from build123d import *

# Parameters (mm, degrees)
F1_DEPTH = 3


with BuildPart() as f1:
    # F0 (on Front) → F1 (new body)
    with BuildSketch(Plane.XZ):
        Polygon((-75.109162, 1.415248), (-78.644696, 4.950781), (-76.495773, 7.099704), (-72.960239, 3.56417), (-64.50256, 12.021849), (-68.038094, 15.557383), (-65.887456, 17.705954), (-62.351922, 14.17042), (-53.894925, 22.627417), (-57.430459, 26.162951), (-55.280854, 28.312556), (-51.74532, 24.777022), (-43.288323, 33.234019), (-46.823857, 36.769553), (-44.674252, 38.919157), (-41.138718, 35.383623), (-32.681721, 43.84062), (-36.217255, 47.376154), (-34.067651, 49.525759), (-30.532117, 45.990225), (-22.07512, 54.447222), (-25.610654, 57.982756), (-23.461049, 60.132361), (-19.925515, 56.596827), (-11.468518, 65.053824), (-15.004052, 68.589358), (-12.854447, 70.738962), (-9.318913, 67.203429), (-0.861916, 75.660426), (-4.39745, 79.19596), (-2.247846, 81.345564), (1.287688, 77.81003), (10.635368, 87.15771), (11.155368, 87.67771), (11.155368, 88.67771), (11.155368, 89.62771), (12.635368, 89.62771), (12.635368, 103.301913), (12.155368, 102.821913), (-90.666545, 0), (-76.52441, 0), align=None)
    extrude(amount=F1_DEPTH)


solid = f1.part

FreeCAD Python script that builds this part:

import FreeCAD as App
import Part
import Sketcher
from FreeCAD import Vector


def add_polygon(sketch, points):
    """Adds a closed chain of lines whose ends are joined by coincident constraints."""
    first, n = sketch.GeometryCount, len(points)
    for a, b in zip(points, points[1:] + points[:1]):
        sketch.addGeometry(Part.LineSegment(App.Vector(*a, 0), App.Vector(*b, 0)), False)
    for i in range(n):
        sketch.addConstraint(Sketcher.Constraint("Coincident", first + i, 2, first + (i + 1) % n, 1))

doc = App.newDocument("Part")
body = doc.addObject("PartDesign::Body", "Body")

sketch1 = body.newObject("Sketcher::SketchObject", "Sketch")
sketch1.AttachmentSupport = (doc.getObject("XZ_Plane"), [""])
sketch1.MapMode = "FlatFace"
add_polygon(sketch1, [(-75.109162, 1.415248), (-78.644696, 4.950781), (-76.495773, 7.099704), (-72.960239, 3.56417), (-64.50256, 12.021849), (-68.038094, 15.557383), (-65.887456, 17.705954), (-62.351922, 14.17042), (-53.894925, 22.627417), (-57.430459, 26.162951), (-55.280854, 28.312556), (-51.74532, 24.777022), (-43.288323, 33.234019), (-46.823857, 36.769553), (-44.674252, 38.919157), (-41.138718, 35.383623), (-32.681721, 43.84062), (-36.217255, 47.376154), (-34.067651, 49.525759), (-30.532117, 45.990225), (-22.07512, 54.447222), (-25.610654, 57.982756), (-23.461049, 60.132361), (-19.925515, 56.596827), (-11.468518, 65.053824), (-15.004052, 68.589358), (-12.854447, 70.738962), (-9.318913, 67.203429), (-0.861916, 75.660426), (-4.39745, 79.19596), (-2.247846, 81.345564), (1.287688, 77.81003), (11.155368, 87.67771), (11.155368, 89.62771), (12.635368, 89.62771), (12.635368, 103.301913), (-90.666545, 0), (-76.52441, 0)])
sketch1.addConstraint([
    Sketcher.Constraint("Vertical", 32),
    Sketcher.Constraint("Horizontal", 33),
    Sketcher.Constraint("Vertical", 34),
    Sketcher.Constraint("Horizontal", 36),
    Sketcher.Constraint("PointOnObject", 35, 2, -1),
    Sketcher.Constraint("Distance", 0, 4.999999),
    Sketcher.Constraint("Distance", 2, 5.0),
    Sketcher.Constraint("Distance", 4, 5.0),
    Sketcher.Constraint("Distance", 6, 5.0),
    Sketcher.Constraint("Distance", 8, 5.0),
    Sketcher.Constraint("Distance", 10, 5.0),
    Sketcher.Constraint("Distance", 12, 5.0),
    Sketcher.Constraint("Distance", 14, 5.0),
    Sketcher.Constraint("Distance", 16, 5.0),
    Sketcher.Constraint("Distance", 18, 5.0),
    Sketcher.Constraint("Distance", 20, 5.0),
    Sketcher.Constraint("Distance", 22, 5.0),
    Sketcher.Constraint("Distance", 24, 5.0),
    Sketcher.Constraint("Distance", 26, 4.999999),
    Sketcher.Constraint("Distance", 28, 5.0),
    Sketcher.Constraint("Distance", 30, 5.0),
    Sketcher.Constraint("DistanceX", 33, 1, 33, 2, 1.48),
    Sketcher.Constraint("DistanceY", 32, 1, 32, 2, 1.95),
    Sketcher.Constraint("Distance", 5, 3.04),
    Sketcher.Constraint("Distance", 7, 11.96),
    Sketcher.Constraint("Distance", 9, 3.040001),
    Sketcher.Constraint("Distance", 11, 11.96),
    Sketcher.Constraint("Distance", 13, 3.04),
    Sketcher.Constraint("Distance", 15, 11.96),
    Sketcher.Constraint("Distance", 17, 3.04),
    Sketcher.Constraint("Distance", 19, 11.96),
    Sketcher.Constraint("Distance", 21, 3.040001),
    Sketcher.Constraint("Distance", 23, 11.96),
    Sketcher.Constraint("Distance", 25, 3.04),
    Sketcher.Constraint("Distance", 27, 11.96),
    Sketcher.Constraint("Distance", 29, 3.039999),
    Sketcher.Constraint("DistanceX", 0, 2, 4, 2, 10.606602),
    Sketcher.Constraint("DistanceY", 0, 2, 4, 2, 10.606602),
    Sketcher.Constraint("DistanceX", 3, 2, 8, 2, 7.072101),
    Sketcher.Constraint("DistanceY", 6, 2, 10, 2, 10.606602),
    Sketcher.Constraint("DistanceX", 6, 2, 11, 2, 19.063599),
    Sketcher.Constraint("DistanceY", 6, 2, 11, 2, 19.063599),
    Sketcher.Constraint("DistanceX", 9, 2, 13, 2, 10.606602),
    Sketcher.Constraint("DistanceY", 9, 2, 13, 2, 10.606601),
    Sketcher.Constraint("DistanceY", 10, 2, 14, 2, 10.606601),
    Sketcher.Constraint("DistanceX", 11, 2, 15, 2, 10.606602),
    Sketcher.Constraint("DistanceX", 12, 2, 16, 2, 10.606602),
    Sketcher.Constraint("DistanceX", 13, 2, 17, 2, 10.606601),
    Sketcher.Constraint("DistanceX", 14, 2, 18, 2, 10.606601),
    Sketcher.Constraint("DistanceX", 15, 2, 19, 2, 10.606601),
    Sketcher.Constraint("DistanceX", 16, 2, 20, 2, 10.606601),
    Sketcher.Constraint("DistanceX", 17, 2, 21, 2, 10.606602),
    Sketcher.Constraint("DistanceX", 18, 2, 22, 2, 10.606602),
    Sketcher.Constraint("DistanceX", 19, 2, 23, 2, 10.606602),
    Sketcher.Constraint("DistanceX", 21, 2, 25, 2, 10.606602),
    Sketcher.Constraint("DistanceY", 21, 2, 25, 2, 10.606601),
    Sketcher.Constraint("DistanceX", 23, 2, 27, 2, 10.606602),
    Sketcher.Constraint("DistanceY", 23, 2, 27, 2, 10.606602),
    Sketcher.Constraint("DistanceX", 24, 2, 28, 2, 10.606602),
    Sketcher.Constraint("DistanceX", 25, 2, 29, 2, 10.606601),
    Sketcher.Constraint("DistanceX", 26, 2, 30, 2, 10.606601),
    Sketcher.Constraint("DistanceX", 37, 2, 3, 2, 10.606602),
    Sketcher.Constraint("DistanceX", 36, 1, 36, 2, 14.142135),
    Sketcher.Constraint("DistanceY", 34, 1, 34, 2, 13.674203),
    Sketcher.Constraint("DistanceY", -1, 1, 0, 2, 4.950781),
    Sketcher.Constraint("DistanceX", 2, 2, -1, 1, 72.960239),
    Sketcher.Constraint("DistanceY", -1, 1, 2, 2, 3.56417),
    Sketcher.Constraint("DistanceX", 3, 2, -1, 1, 64.50256),
    Sketcher.Constraint("DistanceY", -1, 1, 3, 2, 12.021849),
    Sketcher.Constraint("DistanceY", -1, 1, 6, 2, 14.17042),
    Sketcher.Constraint("DistanceY", -1, 1, 8, 2, 26.162951),
    Sketcher.Constraint("DistanceX", 10, 2, -1, 1, 51.74532),
    Sketcher.Constraint("DistanceY", -1, 1, 31, 2, 87.67771),
    Sketcher.Constraint("DistanceX", 36, 2, -1, 1, 76.52441),
    Sketcher.Constraint("DistanceX", 1, 2, 4, 2, 8.457679),
    Sketcher.Constraint("DistanceX", 30, 2, 31, 2, 9.86768),
])
pad1 = body.newObject("PartDesign::Pad", "Pad")
pad1.Profile = sketch1
pad1.Length = 3

doc.recompute()
